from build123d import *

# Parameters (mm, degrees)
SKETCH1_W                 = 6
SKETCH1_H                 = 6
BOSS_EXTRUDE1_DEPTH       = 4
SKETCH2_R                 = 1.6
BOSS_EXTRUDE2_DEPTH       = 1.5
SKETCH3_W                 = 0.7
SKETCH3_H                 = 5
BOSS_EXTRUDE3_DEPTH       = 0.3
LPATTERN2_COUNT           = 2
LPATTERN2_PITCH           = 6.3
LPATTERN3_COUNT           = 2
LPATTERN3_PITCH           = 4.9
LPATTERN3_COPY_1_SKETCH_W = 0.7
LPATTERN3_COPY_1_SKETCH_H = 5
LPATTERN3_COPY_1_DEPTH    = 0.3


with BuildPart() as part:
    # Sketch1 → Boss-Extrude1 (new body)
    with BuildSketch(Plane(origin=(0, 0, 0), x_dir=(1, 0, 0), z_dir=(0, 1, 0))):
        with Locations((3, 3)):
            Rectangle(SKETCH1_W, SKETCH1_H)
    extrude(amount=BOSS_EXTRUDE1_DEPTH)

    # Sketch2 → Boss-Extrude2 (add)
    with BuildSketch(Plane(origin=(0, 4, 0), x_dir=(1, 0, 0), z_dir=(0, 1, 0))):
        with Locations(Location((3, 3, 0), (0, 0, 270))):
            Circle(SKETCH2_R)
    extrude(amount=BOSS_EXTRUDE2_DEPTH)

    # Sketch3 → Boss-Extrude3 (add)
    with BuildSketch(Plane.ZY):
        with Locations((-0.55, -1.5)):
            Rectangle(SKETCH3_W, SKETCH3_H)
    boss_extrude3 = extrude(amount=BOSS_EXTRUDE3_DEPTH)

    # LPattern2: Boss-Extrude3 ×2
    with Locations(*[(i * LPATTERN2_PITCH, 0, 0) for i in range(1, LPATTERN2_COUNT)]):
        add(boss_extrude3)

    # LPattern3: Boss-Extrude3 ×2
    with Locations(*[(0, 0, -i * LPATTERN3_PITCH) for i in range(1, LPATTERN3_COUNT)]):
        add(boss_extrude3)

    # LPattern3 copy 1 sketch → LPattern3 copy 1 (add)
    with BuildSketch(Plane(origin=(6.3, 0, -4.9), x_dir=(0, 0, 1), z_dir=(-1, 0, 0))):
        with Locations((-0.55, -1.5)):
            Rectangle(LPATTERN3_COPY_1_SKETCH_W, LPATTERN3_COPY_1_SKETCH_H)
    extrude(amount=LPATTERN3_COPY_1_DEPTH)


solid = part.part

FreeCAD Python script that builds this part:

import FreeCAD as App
import Part
import Sketcher

V = App.Vector
Q = App.Units.Quantity

doc = App.newDocument("Part")
params = doc.addObject("Spreadsheet::Sheet", "Params")
for row, (alias, value) in enumerate([
    ("sketch1_width", "6 mm"),
    ("pad1_length", "4 mm"),
    ("sketch2_diameter", "3.2 mm"),
    ("pad2_length", "1.5 mm"),
    ("sketch3_width", "5 mm"),
    ("sketch3_height", "0.7 mm"),
    ("pad3_length", "0.3 mm"),
    ("linearpattern_pitch", "6.3 mm"),
    ("linearpattern2_pitch", "4.9 mm"),
    ("sketch4_width", "5 mm"),
    ("sketch4_height", "0.7 mm"),
    ("pad4_length", "0.3 mm"),
], start=1):
    params.set(f"A{row}", alias)
    params.set(f"B{row}", "=" + value)
    params.setAlias(f"B{row}", alias)

body = doc.addObject("PartDesign::Body", "Body")

# Sketch on XZ plane
sketch1 = body.newObject("Sketcher::SketchObject", "Sketch")
sketch1.AttachmentSupport = (doc.getObject("XZ_Plane"), [""])
sketch1.MapMode = "FlatFace"
sketch1.addGeometry(Part.LineSegment(V(0, -6, 0), V(0, 0, 0)), False)
sketch1.addGeometry(Part.LineSegment(V(0, 0, 0), V(6, 0, 0)), False)
sketch1.addGeometry(Part.LineSegment(V(6, 0, 0), V(6, -6, 0)), False)
sketch1.addGeometry(Part.LineSegment(V(6, -6, 0), V(0, -6, 0)), False)
sketch1.addConstraint(Sketcher.Constraint("Coincident", 0, 2, 1, 1))
sketch1.addConstraint(Sketcher.Constraint("Coincident", 1, 2, 2, 1))
sketch1.addConstraint(Sketcher.Constraint("Coincident", 2, 2, 3, 1))
sketch1.addConstraint(Sketcher.Constraint("Coincident", 3, 2, 0, 1))
sketch1.addConstraint(Sketcher.Constraint("Vertical", 0))
sketch1.addConstraint(Sketcher.Constraint("Horizontal", 1))
sketch1.addConstraint(Sketcher.Constraint("Vertical", 2))
sketch1.addConstraint(Sketcher.Constraint("Horizontal", 3))
sketch1.addConstraint(Sketcher.Constraint("Coincident", 0, 2, -1, 1))
sketch1.addConstraint(Sketcher.Constraint("Equal", 3, 0))
sketch1.addConstraint(Sketcher.Constraint("DistanceX", 1, 1, 1, 2, Q("6 mm")))
sketch1.setExpression("Constraints[10]", "Params.sketch1_width")
pad1 = body.newObject("PartDesign::Pad", "Pad")
pad1.Profile = sketch1
pad1.setExpression("Length", "Params.pad1_length")
pad1.Reversed = True

# Sketch on XZ plane
sketch2 = body.newObject("Sketcher::SketchObject", "Sketch001")
sketch2.AttachmentSupport = (doc.getObject("XZ_Plane"), [""])
sketch2.MapMode = "FlatFace"
sketch2.AttachmentOffset = App.Placement(V(0, 0, -4), App.Rotation())
sketch2.addGeometry(Part.Circle(V(3, -3, 0), V(0, 0, 1), 1.6), False)
sketch2.addConstraint(Sketcher.Constraint("Diameter", 0, Q("3.2 mm")))
sketch2.addConstraint(Sketcher.Constraint("DistanceX", -1, 1, 0, 3, Q("3 mm")))
sketch2.addConstraint(Sketcher.Constraint("DistanceY", 0, 3, -1, 1, Q("3 mm")))
sketch2.setExpression("Constraints[0]", "Params.sketch2_diameter")
pad2 = body.newObject("PartDesign::Pad", "Pad001")
pad2.Profile = sketch2
pad2.setExpression("Length", "Params.pad2_length")
pad2.Reversed = True

# Sketch on YZ plane
sketch3 = body.newObject("Sketcher::SketchObject", "Sketch002")
sketch3.AttachmentSupport = (doc.getObject("YZ_Plane"), [""])
sketch3.MapMode = "FlatFace"
sketch3.addGeometry(Part.LineSegment(V(1, -0.9, 0), V(-4, -0.9, 0)), False)
sketch3.addGeometry(Part.LineSegment(V(-4, -0.9, 0), V(-4, -0.2, 0)), False)
sketch3.addGeometry(Part.LineSegment(V(-4, -0.2, 0), V(1, -0.2, 0)), False)
sketch3.addGeometry(Part.LineSegment(V(1, -0.2, 0), V(1, -0.9, 0)), False)
sketch3.addConstraint(Sketcher.Constraint("Coincident", 0, 2, 1, 1))
sketch3.addConstraint(Sketcher.Constraint("Coincident", 1, 2, 2, 1))
sketch3.addConstraint(Sketcher.Constraint("Coincident", 2, 2, 3, 1))
sketch3.addConstraint(Sketcher.Constraint("Coincident", 3, 2, 0, 1))
sketch3.addConstraint(Sketcher.Constraint("Horizontal", 0))
sketch3.addConstraint(Sketcher.Constraint("Vertical", 1))
sketch3.addConstraint(Sketcher.Constraint("Horizontal", 2))
sketch3.addConstraint(Sketcher.Constraint("Vertical", 3))
sketch3.addConstraint(Sketcher.Constraint("DistanceX", 0, 2, 0, 1, Q("5 mm")))
sketch3.addConstraint(Sketcher.Constraint("DistanceY", 1, 1, 1, 2, Q("0.7 mm")))
sketch3.addConstraint(Sketcher.Constraint("DistanceX", 0, 2, -1, 1, Q("4 mm")))
sketch3.addConstraint(Sketcher.Constraint("DistanceY", 0, 2, -1, 1, Q("0.9 mm")))
sketch3.setExpression("Constraints[8]", "Params.sketch3_width")
sketch3.setExpression("Constraints[9]", "Params.sketch3_height")
pad3 = body.newObject("PartDesign::Pad", "Pad002")
pad3.Profile = sketch3
pad3.setExpression("Length", "Params.pad3_length")
pad3.Reversed = True
doc.recompute()

linearpattern = body.newObject("PartDesign::LinearPattern", "LinearPattern")
linearpattern.Originals = [pad3]
linearpattern.Direction = (doc.getObject("X_Axis"), [""])
linearpattern.Mode = "offset"
linearpattern.setExpression("Offset", "Params.linearpattern_pitch")
linearpattern.Occurrences = 2
body.Tip = linearpattern
doc.recompute()

linearpattern2 = body.newObject("PartDesign::LinearPattern", "LinearPattern001")
linearpattern2.Originals = [pad3]
linearpattern2.Direction = (doc.getObject("Z_Axis"), [""])
linearpattern2.Mode = "offset"
linearpattern2.setExpression("Offset", "Params.linearpattern2_pitch")
linearpattern2.Occurrences = 2
linearpattern2.Reversed = True
body.Tip = linearpattern2

# Sketch on YZ plane
sketch4 = body.newObject("Sketcher::SketchObject", "Sketch003")
sketch4.AttachmentSupport = (doc.getObject("YZ_Plane"), [""])
sketch4.MapMode = "FlatFace"
sketch4.AttachmentOffset = App.Placement(V(0, 0, 6.3), App.Rotation())
sketch4.addGeometry(Part.LineSegment(V(1, -5.8, 0), V(-4, -5.8, 0)), False)
sketch4.addGeometry(Part.LineSegment(V(-4, -5.8, 0), V(-4, -5.1, 0)), False)
sketch4.addGeometry(Part.LineSegment(V(-4, -5.1, 0), V(1, -5.1, 0)), False)
sketch4.addGeometry(Part.LineSegment(V(1, -5.1, 0), V(1, -5.8, 0)), False)
sketch4.addConstraint(Sketcher.Constraint("Coincident", 0, 2, 1, 1))
sketch4.addConstraint(Sketcher.Constraint("Coincident", 1, 2, 2, 1))
sketch4.addConstraint(Sketcher.Constraint("Coincident", 2, 2, 3, 1))
sketch4.addConstraint(Sketcher.Constraint("Coincident", 3, 2, 0, 1))
sketch4.addConstraint(Sketcher.Constraint("Horizontal", 0))
sketch4.addConstraint(Sketcher.Constraint("Vertical", 1))
sketch4.addConstraint(Sketcher.Constraint("Horizontal", 2))
sketch4.addConstraint(Sketcher.Constraint("Vertical", 3))
sketch4.addConstraint(Sketcher.Constraint("DistanceX", 0, 2, 0, 1, Q("5 mm")))
sketch4.addConstraint(Sketcher.Constraint("DistanceY", 1, 1, 1, 2, Q("0.7 mm")))
sketch4.addConstraint(Sketcher.Constraint("DistanceX", 0, 2, -1, 1, Q("4 mm")))
sketch4.addConstraint(Sketcher.Constraint("DistanceY", 0, 2, -1, 1, Q("5.8 mm")))
sketch4.setExpression("Constraints[8]", "Params.sketch4_width")
sketch4.setExpression("Constraints[9]", "Params.sketch4_height")
pad4 = body.newObject("PartDesign::Pad", "Pad003")
pad4.Profile = sketch4
pad4.setExpression("Length", "Params.pad4_length")
pad4.Reversed = True

doc.recompute()
